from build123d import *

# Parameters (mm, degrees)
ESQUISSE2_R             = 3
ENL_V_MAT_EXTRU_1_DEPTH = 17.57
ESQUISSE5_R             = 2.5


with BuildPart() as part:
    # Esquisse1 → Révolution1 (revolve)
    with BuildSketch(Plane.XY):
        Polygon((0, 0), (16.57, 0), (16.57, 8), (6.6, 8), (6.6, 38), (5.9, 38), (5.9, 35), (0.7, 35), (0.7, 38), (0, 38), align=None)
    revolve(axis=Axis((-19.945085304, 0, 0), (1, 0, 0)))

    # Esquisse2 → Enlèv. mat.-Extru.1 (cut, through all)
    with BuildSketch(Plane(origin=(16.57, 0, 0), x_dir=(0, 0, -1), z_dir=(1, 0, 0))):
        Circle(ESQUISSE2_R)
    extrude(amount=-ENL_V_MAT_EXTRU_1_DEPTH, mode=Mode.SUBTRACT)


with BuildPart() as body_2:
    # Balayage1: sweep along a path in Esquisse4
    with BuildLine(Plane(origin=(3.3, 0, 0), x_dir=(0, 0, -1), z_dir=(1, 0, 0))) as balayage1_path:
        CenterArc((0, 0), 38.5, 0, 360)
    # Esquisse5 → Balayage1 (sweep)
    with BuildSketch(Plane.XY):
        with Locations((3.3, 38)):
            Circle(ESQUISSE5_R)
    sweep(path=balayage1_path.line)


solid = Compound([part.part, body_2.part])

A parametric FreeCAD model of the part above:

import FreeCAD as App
import Part
import Sketcher


def add_polygon(sketch, points):
    """Adds a closed chain of lines whose ends are joined by coincident constraints."""
    first, n = sketch.GeometryCount, len(points)
    for a, b in zip(points, points[1:] + points[:1]):
        sketch.addGeometry(Part.LineSegment(App.Vector(*a, 0), App.Vector(*b, 0)), False)
    for i in range(n):
        sketch.addConstraint(Sketcher.Constraint("Coincident", first + i, 2, first + (i + 1) % n, 1))

doc = App.newDocument("Part")
body = doc.addObject("PartDesign::Body", "Body")

# Sketch on XY plane
sketch1 = doc.addObject("Sketcher::SketchObject", "Sketch")
body.addObject(sketch1)
sketch1.AttachmentSupport = (doc.XY_Plane, [""])
sketch1.MapMode = "FlatFace"
add_polygon(sketch1, [(0, 0), (16.6, 0), (16.6, 8), (6.6, 8), (6.6, 38), (5.9, 38), (5.9, 35), (0.7, 35), (0.7, 38), (0, 38)])  # lines 0-9
sketch1.addConstraint(Sketcher.Constraint("Horizontal", 0))
sketch1.addConstraint(Sketcher.Constraint("Vertical", 1))
sketch1.addConstraint(Sketcher.Constraint("Horizontal", 2))
sketch1.addConstraint(Sketcher.Constraint("Vertical", 3))
sketch1.addConstraint(Sketcher.Constraint("Horizontal", 4))
sketch1.addConstraint(Sketcher.Constraint("Vertical", 5))
sketch1.addConstraint(Sketcher.Constraint("Horizontal", 6))
sketch1.addConstraint(Sketcher.Constraint("Vertical", 7))
sketch1.addConstraint(Sketcher.Constraint("Horizontal", 8))
sketch1.addConstraint(Sketcher.Constraint("Vertical", 9))
sketch1.addConstraint(Sketcher.Constraint("Coincident", 9, 2, -1, 1))
sketch1.addConstraint(Sketcher.Constraint("Horizontal", 4, 2, 7, 2))
sketch1.addConstraint(Sketcher.Constraint("Equal", 4, 8))
sketch1.addConstraint(Sketcher.Constraint("DistanceY", 1, 1, 1, 2, 8.0))
sketch1.addConstraint(Sketcher.Constraint("DistanceY", 3, 1, 3, 2, 30.0))
sketch1.addConstraint(Sketcher.Constraint("DistanceY", 5, 2, 5, 1, 3.0))
sketch1.addConstraint(Sketcher.Constraint("DistanceX", 4, 2, 4, 1, 0.7))
sketch1.addConstraint(Sketcher.Constraint("DistanceX", 6, 2, 6, 1, 5.2))
sketch1.addConstraint(Sketcher.Constraint("DistanceX", 0, 1, 0, 2, 16.57))
revolution = doc.addObject("PartDesign::Revolution", "Revolution")
body.addObject(revolution)
revolution.Profile = sketch1
revolution.ReferenceAxis = (sketch1, ["H_Axis"])
revolution.Angle = 360

# Sketch on YZ plane
sketch2 = doc.addObject("Sketcher::SketchObject", "Sketch001")
body.addObject(sketch2)
sketch2.AttachmentSupport = (doc.YZ_Plane, [""])
sketch2.MapMode = "FlatFace"
sketch2.AttachmentOffset = App.Placement(App.Vector(0, 0, 16.57), App.Rotation())
sketch2.addGeometry(Part.Circle(App.Vector(0, 0, 0), App.Vector(0, 0, 1), 3), False)
sketch2.addConstraint(Sketcher.Constraint("Coincident", 0, 3, -1, 1))
sketch2.addConstraint(Sketcher.Constraint("Diameter", 0, 6.0))
pocket1 = doc.addObject("PartDesign::Pocket", "Pocket")
body.addObject(pocket1)
pocket1.Profile = sketch2
pocket1.Type = "ThroughAll"
body2 = doc.addObject("PartDesign::Body", "Body001")

# Sketch on XY plane
sketch3 = doc.addObject("Sketcher::SketchObject", "Sketch002")
body2.addObject(sketch3)
sketch3.AttachmentSupport = (doc.getObject("XY_Plane001"), [""])
sketch3.MapMode = "FlatFace"
sketch3.addGeometry(Part.Circle(App.Vector(3.3, 38, 0), App.Vector(0, 0, 1), 2.5), False)
sketch3.addConstraint(Sketcher.Constraint("Diameter", 0, 5.0))
sketch3.addConstraint(Sketcher.Constraint("DistanceY", -1, 1, 0, 3, 38.0))
sketch3.addConstraint(Sketcher.Constraint("DistanceX", -1, 1, 0, 3, 3.3))

# Sketch on YZ plane
sketch4 = doc.addObject("Sketcher::SketchObject", "Sketch003")
body2.addObject(sketch4)
sketch4.AttachmentSupport = (doc.getObject("YZ_Plane001"), [""])
sketch4.MapMode = "FlatFace"
sketch4.AttachmentOffset = App.Placement(App.Vector(0, 0, 3.3), App.Rotation())
sketch4.addGeometry(Part.Circle(App.Vector(0, 0, 0), App.Vector(0, 0, 1), 38), False)
sketch4.addConstraint(Sketcher.Constraint("Coincident", 0, 3, -1, 1))
sketch4.addConstraint(Sketcher.Constraint("Diameter", 0, 77.0))
doc.recompute()

additivepipe = doc.addObject("PartDesign::AdditivePipe", "AdditivePipe")
body2.addObject(additivepipe)
additivepipe.Profile = sketch3
additivepipe.Spine = (sketch4, ["Edge1"])

doc.recompute()
